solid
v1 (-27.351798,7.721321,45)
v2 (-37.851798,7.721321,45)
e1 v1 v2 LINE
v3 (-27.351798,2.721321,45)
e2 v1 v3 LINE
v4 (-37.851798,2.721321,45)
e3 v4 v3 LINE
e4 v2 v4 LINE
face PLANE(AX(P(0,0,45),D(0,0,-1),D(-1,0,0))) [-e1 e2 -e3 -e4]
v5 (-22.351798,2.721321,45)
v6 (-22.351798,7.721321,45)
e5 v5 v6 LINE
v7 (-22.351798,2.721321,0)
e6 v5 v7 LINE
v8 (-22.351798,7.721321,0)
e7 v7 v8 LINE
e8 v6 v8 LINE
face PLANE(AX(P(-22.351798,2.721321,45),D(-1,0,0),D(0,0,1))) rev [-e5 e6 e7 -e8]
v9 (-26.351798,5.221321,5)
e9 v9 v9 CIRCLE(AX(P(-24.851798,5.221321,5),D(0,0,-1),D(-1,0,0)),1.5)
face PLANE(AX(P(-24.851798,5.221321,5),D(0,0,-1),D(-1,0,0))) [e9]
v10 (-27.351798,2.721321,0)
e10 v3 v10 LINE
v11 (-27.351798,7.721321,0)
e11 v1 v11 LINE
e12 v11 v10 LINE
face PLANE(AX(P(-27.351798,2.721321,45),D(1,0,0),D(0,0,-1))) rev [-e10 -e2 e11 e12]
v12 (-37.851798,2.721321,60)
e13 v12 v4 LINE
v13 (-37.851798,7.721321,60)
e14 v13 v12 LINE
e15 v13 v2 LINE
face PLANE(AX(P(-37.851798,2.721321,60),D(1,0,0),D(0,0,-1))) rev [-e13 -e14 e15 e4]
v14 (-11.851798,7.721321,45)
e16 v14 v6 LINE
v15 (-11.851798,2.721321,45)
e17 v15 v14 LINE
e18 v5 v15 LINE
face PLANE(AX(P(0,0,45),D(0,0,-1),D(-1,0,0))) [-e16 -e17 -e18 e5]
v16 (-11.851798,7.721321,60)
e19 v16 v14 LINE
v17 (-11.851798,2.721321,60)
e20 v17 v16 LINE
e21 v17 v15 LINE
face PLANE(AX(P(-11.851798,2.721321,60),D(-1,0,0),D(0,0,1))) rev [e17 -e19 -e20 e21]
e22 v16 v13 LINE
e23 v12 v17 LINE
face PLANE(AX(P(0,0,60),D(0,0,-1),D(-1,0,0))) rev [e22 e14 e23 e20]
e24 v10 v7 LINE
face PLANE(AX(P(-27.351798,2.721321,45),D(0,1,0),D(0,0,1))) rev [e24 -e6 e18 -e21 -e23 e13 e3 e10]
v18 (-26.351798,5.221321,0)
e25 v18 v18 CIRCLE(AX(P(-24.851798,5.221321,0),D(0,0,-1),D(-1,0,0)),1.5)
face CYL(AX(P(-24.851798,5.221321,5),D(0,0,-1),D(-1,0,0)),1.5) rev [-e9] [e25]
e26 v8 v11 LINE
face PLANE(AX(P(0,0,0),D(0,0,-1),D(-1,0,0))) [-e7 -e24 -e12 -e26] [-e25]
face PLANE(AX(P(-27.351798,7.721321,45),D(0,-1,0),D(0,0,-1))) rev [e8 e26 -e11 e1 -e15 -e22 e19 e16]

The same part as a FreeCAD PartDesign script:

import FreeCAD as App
import Part
import Sketcher

V = App.Vector
Q = App.Units.Quantity

doc = App.newDocument("Part")
params = doc.addObject("Spreadsheet::Sheet", "Params")
for row, (alias, value) in enumerate([
    ("sketch1_width", "5 mm"),
    ("pad1_length", "45 mm"),
    ("sketch2_width", "26 mm"),
    ("sketch2_height", "5 mm"),
    ("pad2_length", "15 mm"),
    ("sketch3_diameter", "3 mm"),
    ("pocket1_length", "5 mm"),
], start=1):
    params.set(f"A{row}", alias)
    params.set(f"B{row}", "=" + value)
    params.setAlias(f"B{row}", alias)

body = doc.addObject("PartDesign::Body", "Body")

# Sketch on XY plane
sketch1 = body.newObject("Sketcher::SketchObject", "Sketch")
sketch1.AttachmentSupport = (doc.getObject("XY_Plane"), [""])
sketch1.MapMode = "FlatFace"
sketch1.addGeometry([
    Part.LineSegment(V(-27, 8, 0), V(-27, 3, 0)),
    Part.LineSegment(V(-27, 3, 0), V(-22, 3, 0)),
    Part.LineSegment(V(-22, 3, 0), V(-22, 8, 0)),
    Part.LineSegment(V(-22, 8, 0), V(-27, 8, 0)),
], False)
sketch1.addConstraint([
    Sketcher.Constraint("Coincident", 0, 2, 1, 1),
    Sketcher.Constraint("Coincident", 1, 2, 2, 1),
    Sketcher.Constraint("Coincident", 2, 2, 3, 1),
    Sketcher.Constraint("Coincident", 3, 2, 0, 1),
    Sketcher.Constraint("Vertical", 0),
    Sketcher.Constraint("Horizontal", 1),
    Sketcher.Constraint("Vertical", 2),
    Sketcher.Constraint("Horizontal", 3),
    Sketcher.Constraint("Equal", 3, 0),
    Sketcher.Constraint("DistanceX", 1, 1, 1, 2, Q("5 mm")),
    Sketcher.Constraint("DistanceY", -1, 1, 0, 2, Q("2.721321 mm")),
    Sketcher.Constraint("DistanceX", 0, 2, -1, 1, Q("27.351798 mm")),
])
sketch1.setExpression("Constraints[9]", "Params.sketch1_width")
pad1 = body.newObject("PartDesign::Pad", "Pad")
pad1.Profile = sketch1
pad1.setExpression("Length", "Params.pad1_length")

# Sketch on XY plane
sketch2 = body.newObject("Sketcher::SketchObject", "Sketch001")
sketch2.AttachmentSupport = (doc.getObject("XY_Plane"), [""])
sketch2.MapMode = "FlatFace"
sketch2.AttachmentOffset = App.Placement(V(0, 0, 45), App.Rotation())
sketch2.addGeometry([
    Part.LineSegment(V(-38, 8, 0), V(-38, 3, 0)),
    Part.LineSegment(V(-38, 3, 0), V(-12, 3, 0)),
    Part.LineSegment(V(-12, 3, 0), V(-12, 8, 0)),
    Part.LineSegment(V(-12, 8, 0), V(-38, 8, 0)),
], False)
sketch2.addConstraint([
    Sketcher.Constraint("Coincident", 0, 2, 1, 1),
    Sketcher.Constraint("Coincident", 1, 2, 2, 1),
    Sketcher.Constraint("Coincident", 2, 2, 3, 1),
    Sketcher.Constraint("Coincident", 3, 2, 0, 1),
    Sketcher.Constraint("Vertical", 0),
    Sketcher.Constraint("Horizontal", 1),
    Sketcher.Constraint("Vertical", 2),
    Sketcher.Constraint("Horizontal", 3),
    Sketcher.Constraint("DistanceX", 1, 1, 1, 2, Q("26 mm")),
    Sketcher.Constraint("DistanceY", 0, 2, 0, 1, Q("5 mm")),
    Sketcher.Constraint("DistanceY", -1, 1, 0, 2, Q("2.721321 mm")),
    Sketcher.Constraint("DistanceX", 0, 2, -1, 1, Q("37.851798 mm")),
])
sketch2.setExpression("Constraints[8]", "Params.sketch2_width")
sketch2.setExpression("Constraints[9]", "Params.sketch2_height")
pad2 = body.newObject("PartDesign::Pad", "Pad001")
pad2.Profile = sketch2
pad2.setExpression("Length", "Params.pad2_length")

# Sketch on XY plane
sketch3 = body.newObject("Sketcher::SketchObject", "Sketch002")
sketch3.AttachmentSupport = (doc.getObject("XY_Plane"), [""])
sketch3.MapMode = "FlatFace"
sketch3.addGeometry(Part.Circle(V(-24.9, 5.2, 0), V(0, 0, 1), 1.5), False)
sketch3.addConstraint([
    Sketcher.Constraint("Diameter", 0, Q("3 mm")),
    Sketcher.Constraint("DistanceY", -1, 1, 0, 3, Q("5.221321 mm")),
    Sketcher.Constraint("DistanceX", 0, 3, -1, 1, Q("24.851798 mm")),
])
sketch3.setExpression("Constraints[0]", "Params.sketch3_diameter")
pocket1 = body.newObject("PartDesign::Pocket", "Pocket")
pocket1.Profile = sketch3
pocket1.setExpression("Length", "Params.pocket1_length")
pocket1.Reversed = True

doc.recompute()
